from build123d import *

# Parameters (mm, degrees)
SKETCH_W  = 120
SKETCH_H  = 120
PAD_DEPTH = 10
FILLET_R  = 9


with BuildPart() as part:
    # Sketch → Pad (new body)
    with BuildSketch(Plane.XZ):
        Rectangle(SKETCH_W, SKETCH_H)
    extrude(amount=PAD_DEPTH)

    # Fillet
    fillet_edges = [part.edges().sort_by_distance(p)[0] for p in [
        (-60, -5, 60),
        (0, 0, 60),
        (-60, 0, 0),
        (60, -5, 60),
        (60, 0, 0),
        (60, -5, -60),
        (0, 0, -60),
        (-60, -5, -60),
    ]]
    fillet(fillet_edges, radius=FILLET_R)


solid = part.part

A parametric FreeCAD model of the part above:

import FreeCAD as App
import Part
import Sketcher
from FreeCAD import Vector


def edges_at(feature, points):
    """Names of the edges that pass closest to the given points."""
    edges = feature.Shape.Edges
    near = lambda p: min(range(len(edges)), key=lambda i: edges[i].distToShape(Part.Vertex(*p))[0])
    return sorted({f"Edge{near(p) + 1}" for p in points})

doc = App.newDocument("Part")
body = doc.addObject("PartDesign::Body", "Body")

sketch1 = body.newObject("Sketcher::SketchObject", "Sketch")
sketch1.AttachmentSupport = (doc.getObject("XZ_Plane"), [""])
sketch1.MapMode = "FlatFace"
sketch1.addGeometry(Part.LineSegment(Vector(-60, 60, 0), Vector(-60, -60, 0)), False)
sketch1.addGeometry(Part.LineSegment(Vector(-60, -60, 0), Vector(60, -60, 0)), False)
sketch1.addGeometry(Part.LineSegment(Vector(60, -60, 0), Vector(60, 60, 0)), False)
sketch1.addGeometry(Part.LineSegment(Vector(60, 60, 0), Vector(-60, 60, 0)), False)
sketch1.addConstraint(Sketcher.Constraint("Coincident", 0, 2, 1, 1))
sketch1.addConstraint(Sketcher.Constraint("Coincident", 1, 2, 2, 1))
sketch1.addConstraint(Sketcher.Constraint("Coincident", 2, 2, 3, 1))
sketch1.addConstraint(Sketcher.Constraint("Coincident", 3, 2, 0, 1))
sketch1.addConstraint(Sketcher.Constraint("Vertical", 0))
sketch1.addConstraint(Sketcher.Constraint("Horizontal", 1))
sketch1.addConstraint(Sketcher.Constraint("Vertical", 2))
sketch1.addConstraint(Sketcher.Constraint("Horizontal", 3))
sketch1.addConstraint(Sketcher.Constraint("Symmetric", 0, 2, 2, 2, -1, 1))
sketch1.addConstraint(Sketcher.Constraint("Equal", 3, 0))
sketch1.addConstraint(Sketcher.Constraint("DistanceX", 1, 1, 1, 2, 120.0))
pad1 = body.newObject("PartDesign::Pad", "Pad")
pad1.Profile = sketch1
pad1.Length = 10
doc.recompute()

fillet = body.newObject("PartDesign::Fillet", "Fillet")
fillet.Base = (pad1, edges_at(pad1, [
    (-60, -5, 60),
    (0, 0, 60),
    (-60, 0, 0),
    (60, -5, 60),
    (60, 0, 0),
    (60, -5, -60),
    (0, 0, -60),
    (-60, -5, -60),
]))
fillet.Radius = 9

doc.recompute()
